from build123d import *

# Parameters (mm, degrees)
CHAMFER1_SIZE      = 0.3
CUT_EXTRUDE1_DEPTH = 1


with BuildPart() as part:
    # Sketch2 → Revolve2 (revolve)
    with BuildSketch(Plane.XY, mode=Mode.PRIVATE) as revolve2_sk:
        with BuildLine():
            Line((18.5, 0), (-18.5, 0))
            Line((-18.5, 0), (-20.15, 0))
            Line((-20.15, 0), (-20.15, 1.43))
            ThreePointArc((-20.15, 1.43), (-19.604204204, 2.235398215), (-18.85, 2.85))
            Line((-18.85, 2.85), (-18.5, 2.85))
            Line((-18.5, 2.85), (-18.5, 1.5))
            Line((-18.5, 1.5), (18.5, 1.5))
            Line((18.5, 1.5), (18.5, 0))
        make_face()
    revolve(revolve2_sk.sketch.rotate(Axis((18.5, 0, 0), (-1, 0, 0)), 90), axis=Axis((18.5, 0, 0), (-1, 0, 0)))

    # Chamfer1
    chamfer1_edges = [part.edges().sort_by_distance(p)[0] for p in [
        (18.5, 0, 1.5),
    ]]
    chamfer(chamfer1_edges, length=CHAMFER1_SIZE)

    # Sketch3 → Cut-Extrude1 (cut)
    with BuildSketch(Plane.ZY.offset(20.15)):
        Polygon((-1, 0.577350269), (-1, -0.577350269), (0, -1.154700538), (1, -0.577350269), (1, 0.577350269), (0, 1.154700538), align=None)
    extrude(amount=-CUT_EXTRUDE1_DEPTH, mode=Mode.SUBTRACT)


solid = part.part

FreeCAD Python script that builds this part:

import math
import FreeCAD as App
import Part
import Sketcher
from FreeCAD import Vector
Q = App.Units.Quantity


def edges_at(feature, points):
    """Names of the edges that pass closest to the given points."""
    edges = feature.Shape.Edges
    near = lambda p: min(range(len(edges)), key=lambda i: edges[i].distToShape(Part.Vertex(*p))[0])
    return sorted({f"Edge{near(p) + 1}" for p in points})

doc = App.newDocument("Part")
body = doc.addObject("PartDesign::Body", "Body")

# Sketch on XY plane
sketch1 = doc.addObject("Sketcher::SketchObject", "Sketch")
body.addObject(sketch1)
sketch1.AttachmentSupport = (doc.XY_Plane, [""])
sketch1.MapMode = "FlatFace"
sketch1.addGeometry([
    Part.LineSegment(Vector(-20.15, 0, 0), Vector(18.5, 0, 0)),  # 0
    Part.LineSegment(Vector(18.5, 0, 0), Vector(18.5, 1.5, 0)),  # 1
    Part.LineSegment(Vector(18.5, 1.5, 0), Vector(-18.5, 1.5, 0)),  # 2
    Part.LineSegment(Vector(-18.5, 1.5, 0), Vector(-18.5, 2.85, 0)),  # 3
    Part.LineSegment(Vector(-18.5, 2.85, 0), Vector(-18.85, 2.85, 0)),  # 4
    Part.ArcOfCircle(Part.Circle(Vector(-17.13, -0.03, 0), Vector(0, 0, 1), 3.35), math.radians(121), math.radians(154)),  # 5
    Part.LineSegment(Vector(-20.15, 1.43, 0), Vector(-20.15, 0, 0)),  # 6
], False)
sketch1.addConstraint([
    Sketcher.Constraint("Coincident", 0, 2, 1, 1),
    Sketcher.Constraint("Coincident", 1, 2, 2, 1),
    Sketcher.Constraint("Coincident", 2, 2, 3, 1),
    Sketcher.Constraint("Coincident", 3, 2, 4, 1),
    Sketcher.Constraint("Coincident", 4, 2, 5, 1),
    Sketcher.Constraint("Coincident", 5, 2, 6, 1),
    Sketcher.Constraint("Coincident", 6, 2, 0, 1),
    Sketcher.Constraint("Horizontal", 0),
    Sketcher.Constraint("Vertical", 1),
    Sketcher.Constraint("Horizontal", 2),
    Sketcher.Constraint("Vertical", 3),
    Sketcher.Constraint("Horizontal", 4),
    Sketcher.Constraint("Vertical", 6),
    Sketcher.Constraint("PointOnObject", 0, 2, -1),
    Sketcher.Constraint("DistanceX", 2, 2, 2, 1, Q("37 mm")),
    Sketcher.Constraint("Radius", 5, Q("3.35 mm")),
    Sketcher.Constraint("DistanceY", 1, 1, 1, 2, Q("1.5 mm")),
    Sketcher.Constraint("DistanceX", 0, 1, 0, 2, Q("38.65 mm")),
    Sketcher.Constraint("DistanceX", 4, 2, 4, 1, Q("0.35 mm")),
    Sketcher.Constraint("DistanceY", 3, 1, 3, 2, Q("1.35 mm")),
    Sketcher.Constraint("DistanceY", 6, 2, 6, 1, Q("1.43 mm")),
    Sketcher.Constraint("DistanceX", -1, 1, 0, 2, Q("18.5 mm")),
])
revolution = doc.addObject("PartDesign::Revolution", "Revolution")
body.addObject(revolution)
revolution.Profile = sketch1
revolution.ReferenceAxis = (sketch1, ["H_Axis"])
revolution.Angle = 360
doc.recompute()

chamfer = doc.addObject("PartDesign::Chamfer", "Chamfer")
body.addObject(chamfer)
chamfer.Base = (revolution, edges_at(revolution, [(18.5, 0, 1.5)]))
chamfer.Size = 0.3

# Sketch on YZ plane
sketch2 = doc.addObject("Sketcher::SketchObject", "Sketch001")
body.addObject(sketch2)
sketch2.AttachmentSupport = (doc.YZ_Plane, [""])
sketch2.MapMode = "FlatFace"
sketch2.AttachmentOffset = App.Placement(Vector(0, 0, -20.15), App.Rotation())
sketch2.addGeometry([
    Part.LineSegment(Vector(0.6, -1, 0), Vector(-0.6, -1, 0)),  # 0
    Part.LineSegment(Vector(-0.6, -1, 0), Vector(-1.2, 0, 0)),  # 1
    Part.LineSegment(Vector(-1.2, 0, 0), Vector(-0.6, 1, 0)),  # 2
    Part.LineSegment(Vector(-0.6, 1, 0), Vector(0.6, 1, 0)),  # 3
    Part.LineSegment(Vector(0.6, 1, 0), Vector(1.2, 0, 0)),  # 4
    Part.LineSegment(Vector(1.2, 0, 0), Vector(0.6, -1, 0)),  # 5
], False)
sketch2.addConstraint([
    Sketcher.Constraint("Coincident", 0, 2, 1, 1),
    Sketcher.Constraint("Coincident", 1, 2, 2, 1),
    Sketcher.Constraint("Coincident", 2, 2, 3, 1),
    Sketcher.Constraint("Coincident", 3, 2, 4, 1),
    Sketcher.Constraint("Coincident", 4, 2, 5, 1),
    Sketcher.Constraint("Coincident", 5, 2, 0, 1),
    Sketcher.Constraint("Horizontal", 0),
    Sketcher.Constraint("Horizontal", 3),
    Sketcher.Constraint("Symmetric", 0, 2, 3, 2, -1, 1),
    Sketcher.Constraint("Symmetric", 1, 2, 4, 2, -1, 1),
    Sketcher.Constraint("PointOnObject", 1, 2, -1),
    Sketcher.Constraint("Parallel", 2, 5),
    Sketcher.Constraint("Vertical", 0, 2, 2, 2),
    Sketcher.Constraint("Angle", 1, Q("120 deg")),
    Sketcher.Constraint("DistanceY", 0, 2, -1, 1, Q("1 mm")),
    Sketcher.Constraint("DistanceX", 0, 2, 0, 1, Q("1.154701 mm")),
])
pocket1 = doc.addObject("PartDesign::Pocket", "Pocket")
body.addObject(pocket1)
pocket1.Profile = sketch2
pocket1.Length = 1
pocket1.Reversed = True

doc.recompute()
